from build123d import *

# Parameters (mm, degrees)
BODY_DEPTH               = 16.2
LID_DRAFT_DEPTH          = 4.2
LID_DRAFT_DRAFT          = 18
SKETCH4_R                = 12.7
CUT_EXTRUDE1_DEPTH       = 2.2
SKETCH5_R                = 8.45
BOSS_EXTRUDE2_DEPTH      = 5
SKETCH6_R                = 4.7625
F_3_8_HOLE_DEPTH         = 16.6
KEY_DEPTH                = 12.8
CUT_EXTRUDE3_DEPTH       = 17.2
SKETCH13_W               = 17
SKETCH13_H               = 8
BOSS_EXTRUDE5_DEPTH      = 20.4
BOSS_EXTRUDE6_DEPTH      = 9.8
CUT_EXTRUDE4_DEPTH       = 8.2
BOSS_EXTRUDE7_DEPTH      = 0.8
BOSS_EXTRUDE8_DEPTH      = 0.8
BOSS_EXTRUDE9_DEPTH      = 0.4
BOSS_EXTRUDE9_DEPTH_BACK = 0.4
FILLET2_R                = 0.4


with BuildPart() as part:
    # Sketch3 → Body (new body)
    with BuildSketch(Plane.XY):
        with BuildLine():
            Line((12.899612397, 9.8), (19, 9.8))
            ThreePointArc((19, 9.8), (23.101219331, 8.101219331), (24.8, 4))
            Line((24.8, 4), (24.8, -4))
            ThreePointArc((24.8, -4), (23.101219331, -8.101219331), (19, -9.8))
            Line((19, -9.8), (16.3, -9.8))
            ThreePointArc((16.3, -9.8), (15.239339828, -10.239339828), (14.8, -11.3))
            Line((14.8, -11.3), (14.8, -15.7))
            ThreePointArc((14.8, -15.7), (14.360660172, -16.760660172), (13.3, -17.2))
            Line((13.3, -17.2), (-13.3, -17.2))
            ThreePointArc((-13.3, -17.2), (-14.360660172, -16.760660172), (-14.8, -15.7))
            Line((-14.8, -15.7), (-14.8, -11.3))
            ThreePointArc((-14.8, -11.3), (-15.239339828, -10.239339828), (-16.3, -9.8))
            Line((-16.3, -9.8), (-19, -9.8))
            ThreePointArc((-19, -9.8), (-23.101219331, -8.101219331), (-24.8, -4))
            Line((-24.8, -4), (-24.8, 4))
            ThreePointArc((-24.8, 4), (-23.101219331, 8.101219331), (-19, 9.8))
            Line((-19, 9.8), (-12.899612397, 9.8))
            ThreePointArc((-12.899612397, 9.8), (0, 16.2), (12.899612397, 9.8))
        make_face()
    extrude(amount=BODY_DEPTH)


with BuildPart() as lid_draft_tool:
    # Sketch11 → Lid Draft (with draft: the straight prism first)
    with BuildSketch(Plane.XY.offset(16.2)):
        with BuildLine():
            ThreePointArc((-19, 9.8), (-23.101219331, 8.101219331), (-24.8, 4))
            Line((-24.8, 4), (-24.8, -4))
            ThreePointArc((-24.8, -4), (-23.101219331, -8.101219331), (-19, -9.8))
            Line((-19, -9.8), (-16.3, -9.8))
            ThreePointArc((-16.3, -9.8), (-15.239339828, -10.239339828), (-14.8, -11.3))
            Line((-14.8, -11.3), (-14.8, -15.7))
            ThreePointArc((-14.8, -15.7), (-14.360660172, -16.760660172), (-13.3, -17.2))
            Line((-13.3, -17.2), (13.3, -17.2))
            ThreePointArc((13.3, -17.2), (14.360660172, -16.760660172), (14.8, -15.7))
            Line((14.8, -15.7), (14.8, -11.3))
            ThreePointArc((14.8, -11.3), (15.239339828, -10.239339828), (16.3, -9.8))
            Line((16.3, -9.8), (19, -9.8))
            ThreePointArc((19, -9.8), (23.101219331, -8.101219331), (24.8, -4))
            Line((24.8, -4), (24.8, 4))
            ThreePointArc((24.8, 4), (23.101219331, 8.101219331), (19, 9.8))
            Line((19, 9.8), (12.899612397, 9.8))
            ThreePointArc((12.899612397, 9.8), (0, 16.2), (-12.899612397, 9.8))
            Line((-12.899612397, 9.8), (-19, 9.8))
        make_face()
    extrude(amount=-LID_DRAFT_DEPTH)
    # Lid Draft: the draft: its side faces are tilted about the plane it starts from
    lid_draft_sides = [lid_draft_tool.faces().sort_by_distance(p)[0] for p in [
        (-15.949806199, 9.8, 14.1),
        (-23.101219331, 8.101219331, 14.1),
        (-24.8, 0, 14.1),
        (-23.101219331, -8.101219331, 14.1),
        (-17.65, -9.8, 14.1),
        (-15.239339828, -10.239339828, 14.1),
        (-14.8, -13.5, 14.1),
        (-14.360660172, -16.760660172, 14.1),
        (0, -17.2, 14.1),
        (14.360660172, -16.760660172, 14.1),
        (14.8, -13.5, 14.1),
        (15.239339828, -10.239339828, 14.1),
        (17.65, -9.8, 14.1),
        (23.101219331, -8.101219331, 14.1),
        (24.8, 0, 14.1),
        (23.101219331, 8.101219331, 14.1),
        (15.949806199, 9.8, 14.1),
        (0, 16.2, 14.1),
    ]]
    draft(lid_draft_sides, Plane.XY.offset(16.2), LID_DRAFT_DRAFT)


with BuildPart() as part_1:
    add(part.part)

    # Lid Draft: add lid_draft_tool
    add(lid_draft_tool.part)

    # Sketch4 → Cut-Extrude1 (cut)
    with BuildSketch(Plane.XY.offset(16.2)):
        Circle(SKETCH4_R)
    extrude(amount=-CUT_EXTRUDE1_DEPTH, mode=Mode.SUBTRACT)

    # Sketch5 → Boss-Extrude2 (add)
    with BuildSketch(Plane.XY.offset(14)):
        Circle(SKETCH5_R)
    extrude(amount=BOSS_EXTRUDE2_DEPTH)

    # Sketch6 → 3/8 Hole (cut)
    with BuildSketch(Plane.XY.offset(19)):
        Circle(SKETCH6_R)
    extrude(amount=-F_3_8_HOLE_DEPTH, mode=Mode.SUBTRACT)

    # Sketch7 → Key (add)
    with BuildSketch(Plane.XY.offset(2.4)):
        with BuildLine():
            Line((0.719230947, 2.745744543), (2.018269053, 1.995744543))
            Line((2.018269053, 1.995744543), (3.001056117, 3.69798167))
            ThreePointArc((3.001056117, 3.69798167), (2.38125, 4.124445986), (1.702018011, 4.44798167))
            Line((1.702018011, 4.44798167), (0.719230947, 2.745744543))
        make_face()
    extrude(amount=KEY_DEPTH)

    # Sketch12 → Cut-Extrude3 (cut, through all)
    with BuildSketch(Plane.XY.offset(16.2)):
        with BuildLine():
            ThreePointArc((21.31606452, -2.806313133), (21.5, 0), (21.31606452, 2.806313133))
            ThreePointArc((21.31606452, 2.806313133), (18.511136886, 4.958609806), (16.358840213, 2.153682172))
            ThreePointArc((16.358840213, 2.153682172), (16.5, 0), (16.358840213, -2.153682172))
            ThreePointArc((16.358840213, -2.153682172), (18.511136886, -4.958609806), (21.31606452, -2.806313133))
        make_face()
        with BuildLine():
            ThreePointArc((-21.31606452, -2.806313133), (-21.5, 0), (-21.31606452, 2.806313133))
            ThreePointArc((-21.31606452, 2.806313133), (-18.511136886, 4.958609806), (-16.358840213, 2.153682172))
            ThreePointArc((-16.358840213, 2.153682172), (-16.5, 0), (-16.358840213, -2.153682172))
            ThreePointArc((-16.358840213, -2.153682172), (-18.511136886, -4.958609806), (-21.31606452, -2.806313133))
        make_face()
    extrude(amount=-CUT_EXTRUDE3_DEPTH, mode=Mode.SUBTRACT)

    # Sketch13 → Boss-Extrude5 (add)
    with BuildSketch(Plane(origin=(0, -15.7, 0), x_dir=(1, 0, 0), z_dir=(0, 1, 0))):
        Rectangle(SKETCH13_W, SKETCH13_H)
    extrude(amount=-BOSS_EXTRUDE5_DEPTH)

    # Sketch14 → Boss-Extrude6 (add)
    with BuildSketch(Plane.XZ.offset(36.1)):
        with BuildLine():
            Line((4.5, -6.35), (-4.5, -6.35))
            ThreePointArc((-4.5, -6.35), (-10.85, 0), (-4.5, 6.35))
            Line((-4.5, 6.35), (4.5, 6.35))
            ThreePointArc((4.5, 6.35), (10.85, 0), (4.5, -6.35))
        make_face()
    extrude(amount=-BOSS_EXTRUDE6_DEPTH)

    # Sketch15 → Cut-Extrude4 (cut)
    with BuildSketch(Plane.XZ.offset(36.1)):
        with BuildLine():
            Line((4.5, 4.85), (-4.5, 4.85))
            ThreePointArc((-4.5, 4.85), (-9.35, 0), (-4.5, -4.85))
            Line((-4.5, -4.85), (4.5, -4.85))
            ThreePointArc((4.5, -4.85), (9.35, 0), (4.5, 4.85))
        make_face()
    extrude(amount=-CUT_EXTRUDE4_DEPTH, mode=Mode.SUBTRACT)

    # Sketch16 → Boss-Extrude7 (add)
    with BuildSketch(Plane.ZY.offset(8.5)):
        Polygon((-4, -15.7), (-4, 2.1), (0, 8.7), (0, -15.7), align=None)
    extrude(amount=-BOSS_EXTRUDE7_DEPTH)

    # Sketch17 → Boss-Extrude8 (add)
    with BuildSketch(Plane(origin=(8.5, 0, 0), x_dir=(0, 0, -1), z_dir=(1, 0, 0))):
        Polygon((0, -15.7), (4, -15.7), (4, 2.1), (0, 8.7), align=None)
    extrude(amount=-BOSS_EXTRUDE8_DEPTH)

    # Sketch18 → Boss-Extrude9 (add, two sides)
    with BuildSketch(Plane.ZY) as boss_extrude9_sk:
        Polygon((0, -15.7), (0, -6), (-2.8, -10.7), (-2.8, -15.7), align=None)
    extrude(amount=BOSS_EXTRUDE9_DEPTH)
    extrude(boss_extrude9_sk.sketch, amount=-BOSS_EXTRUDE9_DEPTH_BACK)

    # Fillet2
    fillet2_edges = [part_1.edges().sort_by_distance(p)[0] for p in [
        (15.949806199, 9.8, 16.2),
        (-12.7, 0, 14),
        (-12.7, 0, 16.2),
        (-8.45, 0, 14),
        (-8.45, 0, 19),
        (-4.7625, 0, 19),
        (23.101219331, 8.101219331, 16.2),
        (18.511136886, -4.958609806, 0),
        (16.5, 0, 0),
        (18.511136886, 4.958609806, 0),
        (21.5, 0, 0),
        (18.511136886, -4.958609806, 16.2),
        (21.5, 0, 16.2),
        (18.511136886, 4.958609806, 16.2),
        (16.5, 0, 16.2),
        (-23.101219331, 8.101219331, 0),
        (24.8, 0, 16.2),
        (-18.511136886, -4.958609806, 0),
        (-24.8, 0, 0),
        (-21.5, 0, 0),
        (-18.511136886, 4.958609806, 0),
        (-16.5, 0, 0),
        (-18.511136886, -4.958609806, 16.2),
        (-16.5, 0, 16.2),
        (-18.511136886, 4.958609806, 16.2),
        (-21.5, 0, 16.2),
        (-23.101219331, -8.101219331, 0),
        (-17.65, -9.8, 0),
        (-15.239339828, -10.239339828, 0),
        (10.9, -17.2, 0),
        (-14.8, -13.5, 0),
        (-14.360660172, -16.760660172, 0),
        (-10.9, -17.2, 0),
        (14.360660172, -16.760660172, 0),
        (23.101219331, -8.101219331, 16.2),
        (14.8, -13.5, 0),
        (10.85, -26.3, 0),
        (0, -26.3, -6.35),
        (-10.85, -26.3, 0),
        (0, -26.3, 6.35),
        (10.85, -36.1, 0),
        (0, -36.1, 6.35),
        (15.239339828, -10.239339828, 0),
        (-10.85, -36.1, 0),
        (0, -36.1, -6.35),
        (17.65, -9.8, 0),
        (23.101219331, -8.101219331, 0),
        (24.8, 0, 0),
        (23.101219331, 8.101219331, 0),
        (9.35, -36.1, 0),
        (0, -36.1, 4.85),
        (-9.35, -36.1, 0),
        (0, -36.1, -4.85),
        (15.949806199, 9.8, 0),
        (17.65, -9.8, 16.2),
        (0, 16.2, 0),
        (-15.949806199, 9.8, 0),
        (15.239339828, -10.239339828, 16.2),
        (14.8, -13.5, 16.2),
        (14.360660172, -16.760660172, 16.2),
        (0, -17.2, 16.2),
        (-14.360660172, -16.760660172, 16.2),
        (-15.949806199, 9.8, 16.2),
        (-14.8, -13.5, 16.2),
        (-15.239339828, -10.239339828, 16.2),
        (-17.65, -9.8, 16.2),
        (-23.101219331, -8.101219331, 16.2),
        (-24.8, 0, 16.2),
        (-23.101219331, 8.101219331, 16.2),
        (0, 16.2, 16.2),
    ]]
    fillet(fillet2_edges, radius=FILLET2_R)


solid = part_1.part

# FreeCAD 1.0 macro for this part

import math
import FreeCAD as App
import Part
import Sketcher
Q = App.Units.Quantity


def edges_at(feature, points):
    """Names of the edges that pass closest to the given points."""
    edges = feature.Shape.Edges
    near = lambda p: min(range(len(edges)), key=lambda i: edges[i].distToShape(Part.Vertex(*p))[0])
    return sorted({f"Edge{near(p) + 1}" for p in points})


def faces_at(feature, points):
    """Names of the faces that lie closest to the given points."""
    faces = feature.Shape.Faces
    near = lambda p: min(range(len(faces)), key=lambda i: faces[i].distToShape(Part.Vertex(*p))[0])
    return sorted({f"Face{near(p) + 1}" for p in points})

doc = App.newDocument("Part")
body = doc.addObject("PartDesign::Body", "Body")

# Sketch on XY plane
sketch1 = body.newObject("Sketcher::SketchObject", "Sketch")
sketch1.AttachmentSupport = (doc.getObject("XY_Plane"), [""])
sketch1.MapMode = "FlatFace"
sketch1.addGeometry(Part.LineSegment(App.Vector(19, 9.8, 0), App.Vector(12.9, 9.8, 0)), False)
sketch1.addGeometry(Part.ArcOfCircle(Part.Circle(App.Vector(0, 0, 0), App.Vector(0, 0, 1), 16.2), math.radians(37), math.radians(143)), False)
sketch1.addGeometry(Part.LineSegment(App.Vector(-12.9, 9.8, 0), App.Vector(-19, 9.8, 0)), False)
sketch1.addGeometry(Part.ArcOfCircle(Part.Circle(App.Vector(-19, 4, 0), App.Vector(0, 0, 1), 5.8), math.radians(90), math.radians(180)), False)
sketch1.addGeometry(Part.LineSegment(App.Vector(-24.8, 4, 0), App.Vector(-24.8, -4, 0)), False)
sketch1.addGeometry(Part.ArcOfCircle(Part.Circle(App.Vector(-19, -4, 0), App.Vector(0, 0, 1), 5.8), math.radians(180), math.radians(270)), False)
sketch1.addGeometry(Part.LineSegment(App.Vector(-19, -9.8, 0), App.Vector(-16.3, -9.8, 0)), False)
sketch1.addGeometry(Part.ArcOfCircle(Part.Circle(App.Vector(-16.3, -11.3, 0), App.Vector(0, 0, 1), 1.5), math.radians(0), math.radians(90)), False)
sketch1.addGeometry(Part.LineSegment(App.Vector(-14.8, -11.3, 0), App.Vector(-14.8, -15.7, 0)), False)
sketch1.addGeometry(Part.ArcOfCircle(Part.Circle(App.Vector(-13.3, -15.7, 0), App.Vector(0, 0, 1), 1.5), math.radians(180), math.radians(270)), False)
sketch1.addGeometry(Part.LineSegment(App.Vector(-13.3, -17.2, 0), App.Vector(13.3, -17.2, 0)), False)
sketch1.addGeometry(Part.ArcOfCircle(Part.Circle(App.Vector(13.3, -15.7, 0), App.Vector(0, 0, 1), 1.5), math.radians(-90), math.radians(0)), False)
sketch1.addGeometry(Part.LineSegment(App.Vector(14.8, -15.7, 0), App.Vector(14.8, -11.3, 0)), False)
sketch1.addGeometry(Part.ArcOfCircle(Part.Circle(App.Vector(16.3, -11.3, 0), App.Vector(0, 0, 1), 1.5), math.radians(90), math.radians(180)), False)
sketch1.addGeometry(Part.LineSegment(App.Vector(16.3, -9.8, 0), App.Vector(19, -9.8, 0)), False)
sketch1.addGeometry(Part.ArcOfCircle(Part.Circle(App.Vector(19, -4, 0), App.Vector(0, 0, 1), 5.8), math.radians(-90), math.radians(0)), False)
sketch1.addGeometry(Part.LineSegment(App.Vector(24.8, -4, 0), App.Vector(24.8, 4, 0)), False)
sketch1.addGeometry(Part.ArcOfCircle(Part.Circle(App.Vector(19, 4, 0), App.Vector(0, 0, 1), 5.8), math.radians(0), math.radians(90)), False)
sketch1.addConstraint(Sketcher.Constraint("Coincident", 0, 2, 1, 1))
sketch1.addConstraint(Sketcher.Constraint("Coincident", 1, 2, 2, 1))
sketch1.addConstraint(Sketcher.Constraint("Tangent", 2, 2, 3, 1))
sketch1.addConstraint(Sketcher.Constraint("Tangent", 3, 2, 4, 1))
sketch1.addConstraint(Sketcher.Constraint("Tangent", 4, 2, 5, 1))
sketch1.addConstraint(Sketcher.Constraint("Tangent", 5, 2, 6, 1))
sketch1.addConstraint(Sketcher.Constraint("Tangent", 6, 2, 7, 2))
sketch1.addConstraint(Sketcher.Constraint("Tangent", 7, 1, 8, 1))
sketch1.addConstraint(Sketcher.Constraint("Tangent", 8, 2, 9, 1))
sketch1.addConstraint(Sketcher.Constraint("Tangent", 9, 2, 10, 1))
sketch1.addConstraint(Sketcher.Constraint("Tangent", 10, 2, 11, 1))
sketch1.addConstraint(Sketcher.Constraint("Tangent", 11, 2, 12, 1))
sketch1.addConstraint(Sketcher.Constraint("Tangent", 12, 2, 13, 2))
sketch1.addConstraint(Sketcher.Constraint("Tangent", 13, 1, 14, 1))
sketch1.addConstraint(Sketcher.Constraint("Tangent", 14, 2, 15, 1))
sketch1.addConstraint(Sketcher.Constraint("Tangent", 15, 2, 16, 1))
sketch1.addConstraint(Sketcher.Constraint("Tangent", 16, 2, 17, 1))
sketch1.addConstraint(Sketcher.Constraint("Tangent", 17, 2, 0, 1))
sketch1.addConstraint(Sketcher.Constraint("Horizontal", 0))
sketch1.addConstraint(Sketcher.Constraint("Horizontal", 2))
sketch1.addConstraint(Sketcher.Constraint("Vertical", 4))
sketch1.addConstraint(Sketcher.Constraint("Horizontal", 6))
sketch1.addConstraint(Sketcher.Constraint("Vertical", 8))
sketch1.addConstraint(Sketcher.Constraint("Horizontal", 10))
sketch1.addConstraint(Sketcher.Constraint("Vertical", 12))
sketch1.addConstraint(Sketcher.Constraint("Horizontal", 14))
sketch1.addConstraint(Sketcher.Constraint("Vertical", 16))
sketch1.addConstraint(Sketcher.Constraint("Coincident", 1, 3, -1, 1))
sketch1.addConstraint(Sketcher.Constraint("Equal", 3, 5))
sketch1.addConstraint(Sketcher.Constraint("Equal", 7, 9))
sketch1.addConstraint(Sketcher.Constraint("Equal", 9, 11))
sketch1.addConstraint(Sketcher.Constraint("Equal", 11, 13))
sketch1.addConstraint(Sketcher.Constraint("Equal", 5, 15))
sketch1.addConstraint(Sketcher.Constraint("Equal", 15, 17))
sketch1.addConstraint(Sketcher.Constraint("Symmetric", 3, 3, 15, 3, -1, 1))
sketch1.addConstraint(Sketcher.Constraint("Symmetric", 7, 3, 13, 3, -2))
sketch1.addConstraint(Sketcher.Constraint("Horizontal", 3, 3, 17, 3))
sketch1.addConstraint(Sketcher.Constraint("Radius", 1, 16.2))
sketch1.addConstraint(Sketcher.Constraint("Radius", 3, 5.8))
sketch1.addConstraint(Sketcher.Constraint("Radius", 7, 1.5))
sketch1.addConstraint(Sketcher.Constraint("DistanceY", 4, 2, 4, 1, 8.0))
sketch1.addConstraint(Sketcher.Constraint("DistanceX", 6, 1, 6, 2, 2.7))
sketch1.addConstraint(Sketcher.Constraint("DistanceX", 10, 1, 10, 2, 26.6))
sketch1.addConstraint(Sketcher.Constraint("DistanceY", 8, 2, 8, 1, 4.4))
pad1 = body.newObject("PartDesign::Pad", "Pad")
pad1.Profile = sketch1
pad1.Length = 16.2
body2 = doc.addObject("PartDesign::Body", "Body001")

# Sketch on XY plane
sketch2 = body2.newObject("Sketcher::SketchObject", "Sketch001")
sketch2.AttachmentSupport = (doc.getObject("XY_Plane001"), [""])
sketch2.MapMode = "FlatFace"
sketch2.AttachmentOffset = App.Placement(App.Vector(0, 0, 16.2), App.Rotation())
sketch2.addGeometry(Part.ArcOfCircle(Part.Circle(App.Vector(-19, 4, 0), App.Vector(0, 0, 1), 5.8), math.radians(90), math.radians(180)), False)
sketch2.addGeometry(Part.LineSegment(App.Vector(-24.8, 4, 0), App.Vector(-24.8, -4, 0)), False)
sketch2.addGeometry(Part.ArcOfCircle(Part.Circle(App.Vector(-19, -4, 0), App.Vector(0, 0, 1), 5.8), math.radians(180), math.radians(270)), False)
sketch2.addGeometry(Part.LineSegment(App.Vector(-19, -9.8, 0), App.Vector(-16.3, -9.8, 0)), False)
sketch2.addGeometry(Part.ArcOfCircle(Part.Circle(App.Vector(-16.3, -11.3, 0), App.Vector(0, 0, 1), 1.5), math.radians(0), math.radians(90)), False)
sketch2.addGeometry(Part.LineSegment(App.Vector(-14.8, -11.3, 0), App.Vector(-14.8, -15.7, 0)), False)
sketch2.addGeometry(Part.ArcOfCircle(Part.Circle(App.Vector(-13.3, -15.7, 0), App.Vector(0, 0, 1), 1.5), math.radians(180), math.radians(270)), False)
sketch2.addGeometry(Part.LineSegment(App.Vector(-13.3, -17.2, 0), App.Vector(13.3, -17.2, 0)), False)
sketch2.addGeometry(Part.ArcOfCircle(Part.Circle(App.Vector(13.3, -15.7, 0), App.Vector(0, 0, 1), 1.5), math.radians(-90), math.radians(0)), False)
sketch2.addGeometry(Part.LineSegment(App.Vector(14.8, -15.7, 0), App.Vector(14.8, -11.3, 0)), False)
sketch2.addGeometry(Part.ArcOfCircle(Part.Circle(App.Vector(16.3, -11.3, 0), App.Vector(0, 0, 1), 1.5), math.radians(90), math.radians(180)), False)
sketch2.addGeometry(Part.LineSegment(App.Vector(16.3, -9.8, 0), App.Vector(19, -9.8, 0)), False)
sketch2.addGeometry(Part.ArcOfCircle(Part.Circle(App.Vector(19, -4, 0), App.Vector(0, 0, 1), 5.8), math.radians(-90), math.radians(0)), False)
sketch2.addGeometry(Part.LineSegment(App.Vector(24.8, -4, 0), App.Vector(24.8, 4, 0)), False)
sketch2.addGeometry(Part.ArcOfCircle(Part.Circle(App.Vector(19, 4, 0), App.Vector(0, 0, 1), 5.8), math.radians(0), math.radians(90)), False)
sketch2.addGeometry(Part.LineSegment(App.Vector(19, 9.8, 0), App.Vector(12.9, 9.8, 0)), False)
sketch2.addGeometry(Part.ArcOfCircle(Part.Circle(App.Vector(0, 0, 0), App.Vector(0, 0, 1), 16.2), math.radians(37), math.radians(143)), False)
sketch2.addGeometry(Part.LineSegment(App.Vector(-12.9, 9.8, 0), App.Vector(-19, 9.8, 0)), False)
sketch2.addConstraint(Sketcher.Constraint("Tangent", 0, 2, 1, 1))
sketch2.addConstraint(Sketcher.Constraint("Tangent", 1, 2, 2, 1))
sketch2.addConstraint(Sketcher.Constraint("Tangent", 2, 2, 3, 1))
sketch2.addConstraint(Sketcher.Constraint("Tangent", 3, 2, 4, 2))
sketch2.addConstraint(Sketcher.Constraint("Tangent", 4, 1, 5, 1))
sketch2.addConstraint(Sketcher.Constraint("Tangent", 5, 2, 6, 1))
sketch2.addConstraint(Sketcher.Constraint("Tangent", 6, 2, 7, 1))
sketch2.addConstraint(Sketcher.Constraint("Tangent", 7, 2, 8, 1))
sketch2.addConstraint(Sketcher.Constraint("Tangent", 8, 2, 9, 1))
sketch2.addConstraint(Sketcher.Constraint("Tangent", 9, 2, 10, 2))
sketch2.addConstraint(Sketcher.Constraint("Tangent", 10, 1, 11, 1))
sketch2.addConstraint(Sketcher.Constraint("Tangent", 11, 2, 12, 1))
sketch2.addConstraint(Sketcher.Constraint("Tangent", 12, 2, 13, 1))
sketch2.addConstraint(Sketcher.Constraint("Tangent", 13, 2, 14, 1))
sketch2.addConstraint(Sketcher.Constraint("Tangent", 14, 2, 15, 1))
sketch2.addConstraint(Sketcher.Constraint("Coincident", 15, 2, 16, 1))
sketch2.addConstraint(Sketcher.Constraint("Coincident", 16, 2, 17, 1))
sketch2.addConstraint(Sketcher.Constraint("Tangent", 17, 2, 0, 1))
sketch2.addConstraint(Sketcher.Constraint("Vertical", 1))
sketch2.addConstraint(Sketcher.Constraint("Horizontal", 3))
sketch2.addConstraint(Sketcher.Constraint("Vertical", 5))
sketch2.addConstraint(Sketcher.Constraint("Horizontal", 7))
sketch2.addConstraint(Sketcher.Constraint("Vertical", 9))
sketch2.addConstraint(Sketcher.Constraint("Horizontal", 11))
sketch2.addConstraint(Sketcher.Constraint("Vertical", 13))
sketch2.addConstraint(Sketcher.Constraint("Horizontal", 15))
sketch2.addConstraint(Sketcher.Constraint("Horizontal", 17))
sketch2.addConstraint(Sketcher.Constraint("Coincident", 16, 3, -1, 1))
sketch2.addConstraint(Sketcher.Constraint("Equal", 0, 2))
sketch2.addConstraint(Sketcher.Constraint("Equal", 4, 6))
sketch2.addConstraint(Sketcher.Constraint("Equal", 6, 8))
sketch2.addConstraint(Sketcher.Constraint("Equal", 8, 10))
sketch2.addConstraint(Sketcher.Constraint("Equal", 2, 12))
sketch2.addConstraint(Sketcher.Constraint("Equal", 12, 14))
sketch2.addConstraint(Sketcher.Constraint("Symmetric", 0, 3, 12, 3, -1, 1))
sketch2.addConstraint(Sketcher.Constraint("Symmetric", 4, 3, 10, 3, -2))
sketch2.addConstraint(Sketcher.Constraint("Horizontal", 0, 3, 14, 3))
sketch2.addConstraint(Sketcher.Constraint("Radius", 0, 5.8))
sketch2.addConstraint(Sketcher.Constraint("Radius", 4, 1.5))
sketch2.addConstraint(Sketcher.Constraint("Radius", 16, 16.2))
sketch2.addConstraint(Sketcher.Constraint("DistanceY", 1, 2, 1, 1, 8.0))
sketch2.addConstraint(Sketcher.Constraint("DistanceX", 3, 1, 3, 2, 2.7))
sketch2.addConstraint(Sketcher.Constraint("DistanceX", 7, 1, 7, 2, 26.6))
sketch2.addConstraint(Sketcher.Constraint("DistanceY", 5, 2, 5, 1, 4.4))
pad2 = body2.newObject("PartDesign::Pad", "Pad001")
pad2.Profile = sketch2
pad2.Length = 4.2
pad2.Reversed = True
doc.recompute()

datumplane = body2.newObject("PartDesign::Plane", "DatumPlane")
datumplane.AttachmentSupport = (doc.getObject("XY_Plane001"), [""])
datumplane.MapMode = "FlatFace"
datumplane.AttachmentOffset = App.Placement(App.Vector(0, 0, 16.2), App.Rotation())
draft = body2.newObject("PartDesign::Draft", "Draft")
draft.Base = (pad2, faces_at(pad2, [
    (-15.95, 9.8, 14.1),
    (-23.101, 8.101, 14.1),
    (-24.8, 0, 14.1),
    (-23.101, -8.101, 14.1),
    (-17.65, -9.8, 14.1),
    (-15.239, -10.239, 14.1),
    (-14.8, -13.5, 14.1),
    (-14.361, -16.761, 14.1),
    (0, -17.2, 14.1),
    (14.361, -16.761, 14.1),
    (14.8, -13.5, 14.1),
    (15.239, -10.239, 14.1),
    (17.65, -9.8, 14.1),
    (23.101, -8.101, 14.1),
    (24.8, 0, 14.1),
    (23.101, 8.101, 14.1),
    (15.95, 9.8, 14.1),
    (0, 16.2, 14.1),
]))
draft.NeutralPlane = (datumplane, [""])
draft.Angle = 18
draft.Reversed = False
doc.recompute()

boolean = body.newObject("PartDesign::Boolean", "Boolean")
boolean.Type = "Fuse"
boolean.addObjects([body2])

# Sketch on XY plane
sketch3 = body.newObject("Sketcher::SketchObject", "Sketch002")
sketch3.AttachmentSupport = (doc.getObject("XY_Plane"), [""])
sketch3.MapMode = "FlatFace"
sketch3.AttachmentOffset = App.Placement(App.Vector(0, 0, 16.2), App.Rotation())
sketch3.addGeometry(Part.Circle(App.Vector(0, 0, 0), App.Vector(0, 0, 1), 13), False)
sketch3.addConstraint(Sketcher.Constraint("Coincident", 0, 3, -1, 1))
sketch3.addConstraint(Sketcher.Constraint("Diameter", 0, 25.4))
pocket1 = body.newObject("PartDesign::Pocket", "Pocket")
pocket1.Profile = sketch3
pocket1.Length = 2.2

# Sketch on XY plane
sketch4 = body.newObject("Sketcher::SketchObject", "Sketch003")
sketch4.AttachmentSupport = (doc.getObject("XY_Plane"), [""])
sketch4.MapMode = "FlatFace"
sketch4.AttachmentOffset = App.Placement(App.Vector(0, 0, 14), App.Rotation())
sketch4.addGeometry(Part.Circle(App.Vector(0, 0, 0), App.Vector(0, 0, 1), 8), False)
sketch4.addConstraint(Sketcher.Constraint("Coincident", 0, 3, -1, 1))
sketch4.addConstraint(Sketcher.Constraint("Diameter", 0, 16.9))
pad3 = body.newObject("PartDesign::Pad", "Pad002")
pad3.Profile = sketch4
pad3.Length = 5

# Sketch on XY plane
sketch5 = body.newObject("Sketcher::SketchObject", "Sketch004")
sketch5.AttachmentSupport = (doc.getObject("XY_Plane"), [""])
sketch5.MapMode = "FlatFace"
sketch5.AttachmentOffset = App.Placement(App.Vector(0, 0, 19), App.Rotation())
sketch5.addGeometry(Part.Circle(App.Vector(0, 0, 0), App.Vector(0, 0, 1), 4.8), False)
sketch5.addConstraint(Sketcher.Constraint("Coincident", 0, 3, -1, 1))
sketch5.addConstraint(Sketcher.Constraint("Diameter", 0, 9.525))
pocket2 = body.newObject("PartDesign::Pocket", "Pocket001")
pocket2.Profile = sketch5
pocket2.Length = 16.6

# Sketch on XY plane
sketch6 = body.newObject("Sketcher::SketchObject", "Sketch005")
sketch6.AttachmentSupport = (doc.getObject("XY_Plane"), [""])
sketch6.MapMode = "FlatFace"
sketch6.AttachmentOffset = App.Placement(App.Vector(0, 0, 2.4), App.Rotation())
sketch6.addGeometry(Part.LineSegment(App.Vector(0.7, 2.7, 0), App.Vector(2, 2, 0)), False)
sketch6.addGeometry(Part.LineSegment(App.Vector(2, 2, 0), App.Vector(3, 3.7, 0)), False)
sketch6.addGeometry(Part.ArcOfCircle(Part.Circle(App.Vector(0, 0, 0), App.Vector(0, 0, 1), 4.8), math.radians(50.94), math.radians(69.06)), False)
sketch6.addGeometry(Part.LineSegment(App.Vector(1.7, 4.4, 0), App.Vector(0.7, 2.7, 0)), False)
sketch6.addConstraint(Sketcher.Constraint("Coincident", 0, 2, 1, 1))
sketch6.addConstraint(Sketcher.Constraint("Coincident", 1, 2, 2, 1))
sketch6.addConstraint(Sketcher.Constraint("Coincident", 2, 2, 3, 1))
sketch6.addConstraint(Sketcher.Constraint("Coincident", 3, 2, 0, 1))
sketch6.addConstraint(Sketcher.Constraint("Coincident", 2, 3, -1, 1))
sketch6.addConstraint(Sketcher.Constraint("Perpendicular", 0, 1))
sketch6.addConstraint(Sketcher.Constraint("Parallel", 1, 3))
sketch6.addConstraint(Sketcher.Constraint("Equal", 1, 3))
sketch6.addConstraint(Sketcher.Constraint("Angle", 0, Q("-30 deg")))
sketch6.addConstraint(Sketcher.Constraint("Distance", 0, 1.5))
sketch6.addConstraint(Sketcher.Constraint("Radius", 2, 4.7625))
sketch6.addConstraint(Sketcher.Constraint("DistanceX", -1, 1, 0, 2, 2.018269))
pad4 = body.newObject("PartDesign::Pad", "Pad003")
pad4.Profile = sketch6
pad4.Length = 12.8

# Sketch on XY plane
sketch7 = body.newObject("Sketcher::SketchObject", "Sketch006")
sketch7.AttachmentSupport = (doc.getObject("XY_Plane"), [""])
sketch7.MapMode = "FlatFace"
sketch7.AttachmentOffset = App.Placement(App.Vector(0, 0, 16.2), App.Rotation())
sketch7.addGeometry(Part.ArcOfCircle(Part.Circle(App.Vector(0, 0, 0), App.Vector(0, 0, 1), 21.5), math.radians(-7.5), math.radians(7.5)), False)
sketch7.addGeometry(Part.ArcOfCircle(Part.Circle(App.Vector(18.8, 2.5, 0), App.Vector(0, 0, 1), 2.5), math.radians(8), math.radians(187)), False)
sketch7.addGeometry(Part.ArcOfCircle(Part.Circle(App.Vector(0, 0, 0), App.Vector(0, 0, 1), 16.5), math.radians(-7.5), math.radians(7.5)), False)
sketch7.addGeometry(Part.ArcOfCircle(Part.Circle(App.Vector(18.8, -2.5, 0), App.Vector(0, 0, 1), 2.5), math.radians(173), math.radians(352)), False)
sketch7.addGeometry(Part.ArcOfCircle(Part.Circle(App.Vector(0, 0, 0), App.Vector(0, 0, 1), 21.5), math.radians(172.5), math.radians(187.5)), False)
sketch7.addGeometry(Part.ArcOfCircle(Part.Circle(App.Vector(-18.8, -2.5, 0), App.Vector(0, 0, 1), 2.5), math.radians(-172), math.radians(7)), False)
sketch7.addGeometry(Part.ArcOfCircle(Part.Circle(App.Vector(0, 0, 0), App.Vector(0, 0, 1), 16.5), math.radians(172.5), math.radians(187.5)), False)
sketch7.addGeometry(Part.ArcOfCircle(Part.Circle(App.Vector(-18.8, 2.5, 0), App.Vector(0, 0, 1), 2.5), math.radians(-7), math.radians(172)), False)
sketch7.addConstraint(Sketcher.Constraint("Tangent", 0, 2, 1, 1))
sketch7.addConstraint(Sketcher.Constraint("Tangent", 1, 2, 2, 2))
sketch7.addConstraint(Sketcher.Constraint("Tangent", 2, 1, 3, 1))
sketch7.addConstraint(Sketcher.Constraint("Tangent", 3, 2, 0, 1))
sketch7.addConstraint(Sketcher.Constraint("Tangent", 4, 2, 5, 1))
sketch7.addConstraint(Sketcher.Constraint("Tangent", 5, 2, 6, 2))
sketch7.addConstraint(Sketcher.Constraint("Tangent", 6, 1, 7, 1))
sketch7.addConstraint(Sketcher.Constraint("Tangent", 7, 2, 4, 1))
sketch7.addConstraint(Sketcher.Constraint("Coincident", 0, 3, -1, 1))
sketch7.addConstraint(Sketcher.Constraint("Coincident", 2, 3, -1, 1))
sketch7.addConstraint(Sketcher.Constraint("Coincident", 4, 3, -1, 1))
sketch7.addConstraint(Sketcher.Constraint("Coincident", 6, 3, -1, 1))
sketch7.addConstraint(Sketcher.Constraint("Equal", 0, 4))
sketch7.addConstraint(Sketcher.Constraint("Equal", 3, 5))
sketch7.addConstraint(Sketcher.Constraint("Horizontal", 3, 3, 5, 3))
sketch7.addConstraint(Sketcher.Constraint("Horizontal", 1, 3, 7, 3))
sketch7.addConstraint(Sketcher.Constraint("Vertical", 1, 3, 3, 3))
sketch7.addConstraint(Sketcher.Constraint("Radius", 0, 21.5))
sketch7.addConstraint(Sketcher.Constraint("Radius", 1, 2.5))
sketch7.addConstraint(Sketcher.Constraint("DistanceX", -1, 1, 1, 2, 16.35884))
pocket3 = body.newObject("PartDesign::Pocket", "Pocket002")
pocket3.Profile = sketch7
pocket3.Type = "ThroughAll"

# Sketch on XZ plane
sketch8 = body.newObject("Sketcher::SketchObject", "Sketch007")
sketch8.AttachmentSupport = (doc.getObject("XZ_Plane"), [""])
sketch8.MapMode = "FlatFace"
sketch8.AttachmentOffset = App.Placement(App.Vector(0, 0, 15.7), App.Rotation())
sketch8.addGeometry(Part.LineSegment(App.Vector(-8, -4, 0), App.Vector(-8, 4, 0)), False)
sketch8.addGeometry(Part.LineSegment(App.Vector(-8, 4, 0), App.Vector(8, 4, 0)), False)
sketch8.addGeometry(Part.LineSegment(App.Vector(8, 4, 0), App.Vector(8, -4, 0)), False)
sketch8.addGeometry(Part.LineSegment(App.Vector(8, -4, 0), App.Vector(-8, -4, 0)), False)
sketch8.addConstraint(Sketcher.Constraint("Coincident", 0, 2, 1, 1))
sketch8.addConstraint(Sketcher.Constraint("Coincident", 1, 2, 2, 1))
sketch8.addConstraint(Sketcher.Constraint("Coincident", 2, 2, 3, 1))
sketch8.addConstraint(Sketcher.Constraint("Coincident", 3, 2, 0, 1))
sketch8.addConstraint(Sketcher.Constraint("Vertical", 0))
sketch8.addConstraint(Sketcher.Constraint("Horizontal", 1))
sketch8.addConstraint(Sketcher.Constraint("Vertical", 2))
sketch8.addConstraint(Sketcher.Constraint("Horizontal", 3))
sketch8.addConstraint(Sketcher.Constraint("Symmetric", 0, 2, 2, 2, -1, 1))
sketch8.addConstraint(Sketcher.Constraint("DistanceX", 1, 1, 1, 2, 17.0))
sketch8.addConstraint(Sketcher.Constraint("DistanceY", 0, 1, 0, 2, 8.0))
pad5 = body.newObject("PartDesign::Pad", "Pad004")
pad5.Profile = sketch8
pad5.Length = 20.4

# Sketch on XZ plane
sketch9 = body.newObject("Sketcher::SketchObject", "Sketch008")
sketch9.AttachmentSupport = (doc.getObject("XZ_Plane"), [""])
sketch9.MapMode = "FlatFace"
sketch9.AttachmentOffset = App.Placement(App.Vector(0, 0, 36.1), App.Rotation())
sketch9.addGeometry(Part.LineSegment(App.Vector(-4, -6, 0), App.Vector(4, -6, 0)), False)
sketch9.addGeometry(Part.ArcOfCircle(Part.Circle(App.Vector(4, 0, 0), App.Vector(0, 0, 1), 6), math.radians(-90), math.radians(90)), False)
sketch9.addGeometry(Part.LineSegment(App.Vector(4, 6, 0), App.Vector(-4, 6, 0)), False)
sketch9.addGeometry(Part.ArcOfCircle(Part.Circle(App.Vector(-4, 0, 0), App.Vector(0, 0, 1), 6), math.radians(90), math.radians(270)), False)
sketch9.addConstraint(Sketcher.Constraint("Tangent", 0, 2, 1, 1))
sketch9.addConstraint(Sketcher.Constraint("Tangent", 1, 2, 2, 1))
sketch9.addConstraint(Sketcher.Constraint("Tangent", 2, 2, 3, 1))
sketch9.addConstraint(Sketcher.Constraint("Tangent", 3, 2, 0, 1))
sketch9.addConstraint(Sketcher.Constraint("Horizontal", 0))
sketch9.addConstraint(Sketcher.Constraint("Horizontal", 2))
sketch9.addConstraint(Sketcher.Constraint("Symmetric", 1, 3, 3, 3, -1, 1))
sketch9.addConstraint(Sketcher.Constraint("DistanceX", 0, 1, 0, 2, 9.0))
sketch9.addConstraint(Sketcher.Constraint("Radius", 1, 6.35))
pad6 = body.newObject("PartDesign::Pad", "Pad005")
pad6.Profile = sketch9
pad6.Length = 9.8
pad6.Reversed = True

# Sketch on XZ plane
sketch10 = body.newObject("Sketcher::SketchObject", "Sketch009")
sketch10.AttachmentSupport = (doc.getObject("XZ_Plane"), [""])
sketch10.MapMode = "FlatFace"
sketch10.AttachmentOffset = App.Placement(App.Vector(0, 0, 36.1), App.Rotation())
sketch10.addGeometry(Part.LineSegment(App.Vector(4.5, 4.8, 0), App.Vector(-4.5, 4.8, 0)), False)
sketch10.addGeometry(Part.ArcOfCircle(Part.Circle(App.Vector(-4.5, 0, 0), App.Vector(0, 0, 1), 4.8), math.radians(90), math.radians(270)), False)
sketch10.addGeometry(Part.LineSegment(App.Vector(-4.5, -4.8, 0), App.Vector(4.5, -4.8, 0)), False)
sketch10.addGeometry(Part.ArcOfCircle(Part.Circle(App.Vector(4.5, 0, 0), App.Vector(0, 0, 1), 4.8), math.radians(-90), math.radians(90)), False)
sketch10.addConstraint(Sketcher.Constraint("Tangent", 0, 2, 1, 1))
sketch10.addConstraint(Sketcher.Constraint("Tangent", 1, 2, 2, 1))
sketch10.addConstraint(Sketcher.Constraint("Tangent", 2, 2, 3, 1))
sketch10.addConstraint(Sketcher.Constraint("Tangent", 3, 2, 0, 1))
sketch10.addConstraint(Sketcher.Constraint("Horizontal", 0))
sketch10.addConstraint(Sketcher.Constraint("Horizontal", 2))
sketch10.addConstraint(Sketcher.Constraint("Symmetric", 1, 3, 3, 3, -1, 1))
sketch10.addConstraint(Sketcher.Constraint("DistanceX", 0, 2, 0, 1, 9.0))
sketch10.addConstraint(Sketcher.Constraint("Radius", 1, 4.85))
pocket4 = body.newObject("PartDesign::Pocket", "Pocket003")
pocket4.Profile = sketch10
pocket4.Length = 8.2

# Sketch on YZ plane
sketch11 = body.newObject("Sketcher::SketchObject", "Sketch010")
sketch11.AttachmentSupport = (doc.getObject("YZ_Plane"), [""])
sketch11.MapMode = "FlatFace"
sketch11.AttachmentOffset = App.Placement(App.Vector(0, 0, -8.5), App.Rotation())
sketch11.addGeometry(Part.LineSegment(App.Vector(2.1, -4, 0), App.Vector(-15.7, -4, 0)), False)
sketch11.addGeometry(Part.LineSegment(App.Vector(-15.7, -4, 0), App.Vector(-15.7, 0, 0)), False)
sketch11.addGeometry(Part.LineSegment(App.Vector(-15.7, 0, 0), App.Vector(8.7, 0, 0)), False)
sketch11.addGeometry(Part.LineSegment(App.Vector(8.7, 0, 0), App.Vector(2.1, -4, 0)), False)
sketch11.addConstraint(Sketcher.Constraint("Coincident", 0, 2, 1, 1))
sketch11.addConstraint(Sketcher.Constraint("Coincident", 1, 2, 2, 1))
sketch11.addConstraint(Sketcher.Constraint("Coincident", 2, 2, 3, 1))
sketch11.addConstraint(Sketcher.Constraint("Coincident", 3, 2, 0, 1))
sketch11.addConstraint(Sketcher.Constraint("Horizontal", 0))
sketch11.addConstraint(Sketcher.Constraint("Vertical", 1))
sketch11.addConstraint(Sketcher.Constraint("Horizontal", 2))
sketch11.addConstraint(Sketcher.Constraint("PointOnObject", 1, 2, -1))
sketch11.addConstraint(Sketcher.Constraint("DistanceY", 1, 1, 1, 2, 4.0))
sketch11.addConstraint(Sketcher.Constraint("DistanceX", 0, 2, 0, 1, 17.8))
sketch11.addConstraint(Sketcher.Constraint("DistanceX", 2, 1, 2, 2, 24.4))
sketch11.addConstraint(Sketcher.Constraint("DistanceX", 0, 2, -1, 1, 15.7))
pad7 = body.newObject("PartDesign::Pad", "Pad006")
pad7.Profile = sketch11
pad7.Length = 0.8

# Sketch on YZ plane
sketch12 = body.newObject("Sketcher::SketchObject", "Sketch011")
sketch12.AttachmentSupport = (doc.getObject("YZ_Plane"), [""])
sketch12.MapMode = "FlatFace"
sketch12.AttachmentOffset = App.Placement(App.Vector(0, 0, 8.5), App.Rotation())
sketch12.addGeometry(Part.LineSegment(App.Vector(-15.7, 0, 0), App.Vector(-15.7, -4, 0)), False)
sketch12.addGeometry(Part.LineSegment(App.Vector(-15.7, -4, 0), App.Vector(2.1, -4, 0)), False)
sketch12.addGeometry(Part.LineSegment(App.Vector(2.1, -4, 0), App.Vector(8.7, 0, 0)), False)
sketch12.addGeometry(Part.LineSegment(App.Vector(8.7, 0, 0), App.Vector(-15.7, 0, 0)), False)
sketch12.addConstraint(Sketcher.Constraint("Coincident", 0, 2, 1, 1))
sketch12.addConstraint(Sketcher.Constraint("Coincident", 1, 2, 2, 1))
sketch12.addConstraint(Sketcher.Constraint("Coincident", 2, 2, 3, 1))
sketch12.addConstraint(Sketcher.Constraint("Coincident", 3, 2, 0, 1))
sketch12.addConstraint(Sketcher.Constraint("Vertical", 0))
sketch12.addConstraint(Sketcher.Constraint("Horizontal", 1))
sketch12.addConstraint(Sketcher.Constraint("Horizontal", 3))
sketch12.addConstraint(Sketcher.Constraint("PointOnObject", 2, 2, -1))
sketch12.addConstraint(Sketcher.Constraint("DistanceY", 0, 2, 0, 1, 4.0))
sketch12.addConstraint(Sketcher.Constraint("DistanceX", 1, 1, 1, 2, 17.8))
sketch12.addConstraint(Sketcher.Constraint("DistanceX", 3, 2, 3, 1, 24.4))
sketch12.addConstraint(Sketcher.Constraint("DistanceX", 0, 2, -1, 1, 15.7))
pad8 = body.newObject("PartDesign::Pad", "Pad007")
pad8.Profile = sketch12
pad8.Length = 0.8
pad8.Reversed = True

# Sketch on YZ plane
sketch13 = body.newObject("Sketcher::SketchObject", "Sketch012")
sketch13.AttachmentSupport = (doc.getObject("YZ_Plane"), [""])
sketch13.MapMode = "FlatFace"
sketch13.addGeometry(Part.LineSegment(App.Vector(-15.7, 0, 0), App.Vector(-6, 0, 0)), False)
sketch13.addGeometry(Part.LineSegment(App.Vector(-6, 0, 0), App.Vector(-10.7, -2.8, 0)), False)
sketch13.addGeometry(Part.LineSegment(App.Vector(-10.7, -2.8, 0), App.Vector(-15.7, -2.8, 0)), False)
sketch13.addGeometry(Part.LineSegment(App.Vector(-15.7, -2.8, 0), App.Vector(-15.7, 0, 0)), False)
sketch13.addConstraint(Sketcher.Constraint("Coincident", 0, 2, 1, 1))
sketch13.addConstraint(Sketcher.Constraint("Coincident", 1, 2, 2, 1))
sketch13.addConstraint(Sketcher.Constraint("Coincident", 2, 2, 3, 1))
sketch13.addConstraint(Sketcher.Constraint("Coincident", 3, 2, 0, 1))
sketch13.addConstraint(Sketcher.Constraint("Horizontal", 0))
sketch13.addConstraint(Sketcher.Constraint("Horizontal", 2))
sketch13.addConstraint(Sketcher.Constraint("Vertical", 3))
sketch13.addConstraint(Sketcher.Constraint("PointOnObject", 0, 2, -1))
sketch13.addConstraint(Sketcher.Constraint("DistanceX", 2, 2, 2, 1, 5.0))
sketch13.addConstraint(Sketcher.Constraint("DistanceX", 0, 1, 0, 2, 9.7))
sketch13.addConstraint(Sketcher.Constraint("DistanceY", 3, 1, 3, 2, 2.8))
sketch13.addConstraint(Sketcher.Constraint("DistanceX", 0, 2, -1, 1, 6.0))
pad9 = body.newObject("PartDesign::Pad", "Pad008")
pad9.Profile = sketch13
pad9.Type = "TwoLengths"
pad9.Length = 0.4
pad9.Length2 = 0.4
pad9.Reversed = True
doc.recompute()

fillet = body.newObject("PartDesign::Fillet", "Fillet")
fillet.Base = (pad9, edges_at(pad9, [
    (15.95, 9.8, 16.2),
    (-12.7, 0, 14),
    (-12.7, 0, 16.2),
    (-8.45, 0, 14),
    (-8.45, 0, 19),
    (-4.763, 0, 19),
    (23.101, 8.101, 16.2),
    (18.511, -4.959, 0),
    (16.5, 0, 0),
    (18.511, 4.959, 0),
    (21.5, 0, 0),
    (18.511, -4.959, 16.2),
    (21.5, 0, 16.2),
    (18.511, 4.959, 16.2),
    (16.5, 0, 16.2),
    (-23.101, 8.101, 0),
    (24.8, 0, 16.2),
    (-18.511, -4.959, 0),
    (-24.8, 0, 0),
    (-21.5, 0, 0),
    (-18.511, 4.959, 0),
    (-16.5, 0, 0),
    (-18.511, -4.959, 16.2),
    (-16.5, 0, 16.2),
    (-18.511, 4.959, 16.2),
    (-21.5, 0, 16.2),
    (-23.101, -8.101, 0),
    (-17.65, -9.8, 0),
    (-15.239, -10.239, 0),
    (10.9, -17.2, 0),
    (-14.8, -13.5, 0),
    (-14.361, -16.761, 0),
    (-10.9, -17.2, 0),
    (14.361, -16.761, 0),
    (23.101, -8.101, 16.2),
    (14.8, -13.5, 0),
    (10.85, -26.3, 0),
    (0, -26.3, -6.35),
    (-10.85, -26.3, 0),
    (0, -26.3, 6.35),
    (10.85, -36.1, 0),
    (0, -36.1, 6.35),
    (15.239, -10.239, 0),
    (-10.85, -36.1, 0),
    (0, -36.1, -6.35),
    (17.65, -9.8, 0),
    (23.101, -8.101, 0),
    (24.8, 0, 0),
    (23.101, 8.101, 0),
    (9.35, -36.1, 0),
    (0, -36.1, 4.85),
    (-9.35, -36.1, 0),
    (0, -36.1, -4.85),
    (15.95, 9.8, 0),
    (17.65, -9.8, 16.2),
    (0, 16.2, 0),
    (-15.95, 9.8, 0),
    (15.239, -10.239, 16.2),
    (14.8, -13.5, 16.2),
    (14.361, -16.761, 16.2),
    (0, -17.2, 16.2),
    (-14.361, -16.761, 16.2),
    (-15.95, 9.8, 16.2),
    (-14.8, -13.5, 16.2),
    (-15.239, -10.239, 16.2),
    (-17.65, -9.8, 16.2),
    (-23.101, -8.101, 16.2),
    (-24.8, 0, 16.2),
    (-23.101, 8.101, 16.2),
    (0, 16.2, 16.2),
]))
fillet.Radius = 0.4

doc.recompute()
